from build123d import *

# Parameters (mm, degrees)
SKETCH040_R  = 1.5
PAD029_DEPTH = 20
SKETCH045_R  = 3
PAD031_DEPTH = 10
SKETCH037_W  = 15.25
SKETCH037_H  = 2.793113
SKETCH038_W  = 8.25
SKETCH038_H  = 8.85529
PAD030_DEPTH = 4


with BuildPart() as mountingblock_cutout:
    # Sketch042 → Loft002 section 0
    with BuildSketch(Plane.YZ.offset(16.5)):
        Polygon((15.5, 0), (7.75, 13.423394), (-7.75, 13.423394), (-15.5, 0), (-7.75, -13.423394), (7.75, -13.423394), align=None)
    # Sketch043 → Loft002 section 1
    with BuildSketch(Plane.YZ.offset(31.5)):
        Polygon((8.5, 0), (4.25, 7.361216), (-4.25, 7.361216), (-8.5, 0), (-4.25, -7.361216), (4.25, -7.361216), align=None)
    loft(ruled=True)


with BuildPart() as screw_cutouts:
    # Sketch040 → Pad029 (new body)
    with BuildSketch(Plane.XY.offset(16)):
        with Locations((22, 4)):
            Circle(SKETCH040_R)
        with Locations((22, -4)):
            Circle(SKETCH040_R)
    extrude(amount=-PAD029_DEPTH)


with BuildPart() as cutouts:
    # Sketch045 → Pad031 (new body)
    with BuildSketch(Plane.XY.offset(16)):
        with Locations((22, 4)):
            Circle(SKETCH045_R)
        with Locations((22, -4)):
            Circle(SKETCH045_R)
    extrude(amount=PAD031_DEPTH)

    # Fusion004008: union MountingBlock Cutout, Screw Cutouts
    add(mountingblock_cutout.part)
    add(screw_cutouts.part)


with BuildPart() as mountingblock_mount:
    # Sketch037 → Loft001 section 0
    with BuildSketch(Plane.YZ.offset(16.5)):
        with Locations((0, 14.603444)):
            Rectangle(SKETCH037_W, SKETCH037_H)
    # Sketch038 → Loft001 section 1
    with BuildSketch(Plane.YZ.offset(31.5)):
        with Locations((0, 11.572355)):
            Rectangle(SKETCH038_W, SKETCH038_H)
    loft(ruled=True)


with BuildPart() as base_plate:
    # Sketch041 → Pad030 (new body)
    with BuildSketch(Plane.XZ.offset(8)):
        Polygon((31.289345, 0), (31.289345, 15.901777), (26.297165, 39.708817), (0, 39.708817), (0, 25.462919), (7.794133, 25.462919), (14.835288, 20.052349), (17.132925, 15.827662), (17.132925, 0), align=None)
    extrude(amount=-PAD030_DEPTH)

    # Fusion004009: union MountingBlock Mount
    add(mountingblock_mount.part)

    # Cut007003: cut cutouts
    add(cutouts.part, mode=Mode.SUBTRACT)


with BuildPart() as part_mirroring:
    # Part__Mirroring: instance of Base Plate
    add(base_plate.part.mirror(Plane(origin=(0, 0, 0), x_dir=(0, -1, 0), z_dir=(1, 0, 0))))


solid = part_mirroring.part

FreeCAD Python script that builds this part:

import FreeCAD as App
import Part
import Sketcher
from FreeCAD import Vector
Q = App.Units.Quantity

doc = App.newDocument("Part")
params = doc.addObject("Spreadsheet::Sheet", "Params")
for row, (alias, value) in enumerate([
    ("sketch1_width", "15.5 mm"),
    ("sketch2_width", "8.5 mm"),
    ("sketch3_diameter", "3 mm"),
    ("pad1_length", "20 mm"),
    ("sketch4_diameter", "6 mm"),
    ("pad2_length", "10 mm"),
    ("sketch5_width", "15.25 mm"),
    ("sketch6_width", "8.25 mm"),
    ("pad3_length", "4 mm"),
], start=1):
    params.set(f"A{row}", alias)
    params.set(f"B{row}", "=" + value)
    params.setAlias(f"B{row}", alias)

body = doc.addObject("PartDesign::Body", "Body")

# Sketch on YZ plane
sketch1 = body.newObject("Sketcher::SketchObject", "Sketch")
sketch1.AttachmentSupport = (doc.getObject("YZ_Plane"), [""])
sketch1.MapMode = "FlatFace"
sketch1.AttachmentOffset = App.Placement(Vector(0, 0, 16.5), App.Rotation())
sketch1.addGeometry(Part.LineSegment(Vector(15.5, 0, 0), Vector(7.75, 13.423394, 0)), False)
sketch1.addGeometry(Part.LineSegment(Vector(7.75, 13.423394, 0), Vector(-7.75, 13.423394, 0)), False)
sketch1.addGeometry(Part.LineSegment(Vector(-7.75, 13.423394, 0), Vector(-15.5, 0, 0)), False)
sketch1.addGeometry(Part.LineSegment(Vector(-15.5, 0, 0), Vector(-7.75, -13.423394, 0)), False)
sketch1.addGeometry(Part.LineSegment(Vector(-7.75, -13.423394, 0), Vector(7.75, -13.423394, 0)), False)
sketch1.addGeometry(Part.LineSegment(Vector(7.75, -13.423394, 0), Vector(15.5, 0, 0)), False)
sketch1.addConstraint(Sketcher.Constraint("Coincident", 0, 2, 1, 1))
sketch1.addConstraint(Sketcher.Constraint("Coincident", 1, 2, 2, 1))
sketch1.addConstraint(Sketcher.Constraint("Coincident", 2, 2, 3, 1))
sketch1.addConstraint(Sketcher.Constraint("Coincident", 3, 2, 4, 1))
sketch1.addConstraint(Sketcher.Constraint("Coincident", 4, 2, 5, 1))
sketch1.addConstraint(Sketcher.Constraint("Coincident", 5, 2, 0, 1))
sketch1.addConstraint(Sketcher.Constraint("Horizontal", 1))
sketch1.addConstraint(Sketcher.Constraint("Horizontal", 4))
sketch1.addConstraint(Sketcher.Constraint("Symmetric", 0, 2, 3, 2, -1, 1))
sketch1.addConstraint(Sketcher.Constraint("Symmetric", 2, 2, 5, 2, -1, 1))
sketch1.addConstraint(Sketcher.Constraint("PointOnObject", 2, 2, -1))
sketch1.addConstraint(Sketcher.Constraint("Parallel", 2, 5))
sketch1.addConstraint(Sketcher.Constraint("Vertical", 1, 2, 3, 2))
sketch1.addConstraint(Sketcher.Constraint("Angle", 0, Q("120 deg")))
sketch1.addConstraint(Sketcher.Constraint("DistanceX", 1, 2, 1, 1, Q("15.5 mm")))
sketch1.addConstraint(Sketcher.Constraint("DistanceX", 2, 2, 5, 2, Q("31 mm")))
sketch1.setExpression("Constraints[14]", "Params.sketch1_width")

# Sketch on YZ plane
sketch2 = body.newObject("Sketcher::SketchObject", "Sketch001")
sketch2.AttachmentSupport = (doc.getObject("YZ_Plane"), [""])
sketch2.MapMode = "FlatFace"
sketch2.AttachmentOffset = App.Placement(Vector(0, 0, 31.5), App.Rotation())
sketch2.addGeometry(Part.LineSegment(Vector(8.5, 0, 0), Vector(4.25, 7.361216, 0)), False)
sketch2.addGeometry(Part.LineSegment(Vector(4.25, 7.361216, 0), Vector(-4.25, 7.361216, 0)), False)
sketch2.addGeometry(Part.LineSegment(Vector(-4.25, 7.361216, 0), Vector(-8.5, 0, 0)), False)
sketch2.addGeometry(Part.LineSegment(Vector(-8.5, 0, 0), Vector(-4.25, -7.361216, 0)), False)
sketch2.addGeometry(Part.LineSegment(Vector(-4.25, -7.361216, 0), Vector(4.25, -7.361216, 0)), False)
sketch2.addGeometry(Part.LineSegment(Vector(4.25, -7.361216, 0), Vector(8.5, 0, 0)), False)
sketch2.addConstraint(Sketcher.Constraint("Coincident", 0, 2, 1, 1))
sketch2.addConstraint(Sketcher.Constraint("Coincident", 1, 2, 2, 1))
sketch2.addConstraint(Sketcher.Constraint("Coincident", 2, 2, 3, 1))
sketch2.addConstraint(Sketcher.Constraint("Coincident", 3, 2, 4, 1))
sketch2.addConstraint(Sketcher.Constraint("Coincident", 4, 2, 5, 1))
sketch2.addConstraint(Sketcher.Constraint("Coincident", 5, 2, 0, 1))
sketch2.addConstraint(Sketcher.Constraint("Horizontal", 1))
sketch2.addConstraint(Sketcher.Constraint("Horizontal", 4))
sketch2.addConstraint(Sketcher.Constraint("Symmetric", 0, 2, 3, 2, -1, 1))
sketch2.addConstraint(Sketcher.Constraint("Symmetric", 2, 2, 5, 2, -1, 1))
sketch2.addConstraint(Sketcher.Constraint("PointOnObject", 2, 2, -1))
sketch2.addConstraint(Sketcher.Constraint("Parallel", 2, 5))
sketch2.addConstraint(Sketcher.Constraint("Vertical", 1, 2, 3, 2))
sketch2.addConstraint(Sketcher.Constraint("Angle", 0, Q("120 deg")))
sketch2.addConstraint(Sketcher.Constraint("DistanceX", 1, 2, 1, 1, Q("8.5 mm")))
sketch2.addConstraint(Sketcher.Constraint("DistanceX", 2, 2, 5, 2, Q("17 mm")))
sketch2.setExpression("Constraints[14]", "Params.sketch2_width")

additiveloft = body.newObject("PartDesign::AdditiveLoft", "AdditiveLoft")
additiveloft.Profile = sketch1
additiveloft.Sections = [sketch2]
additiveloft.Ruled = True
body2 = doc.addObject("PartDesign::Body", "Body001")
body2.AllowCompound = True

# Sketch on XY plane
sketch3 = body2.newObject("Sketcher::SketchObject", "Sketch002")
sketch3.AttachmentSupport = (doc.getObject("XY_Plane001"), [""])
sketch3.MapMode = "FlatFace"
sketch3.AttachmentOffset = App.Placement(Vector(0, 0, 16), App.Rotation())
sketch3.addGeometry(Part.Circle(Vector(22, 4, 0), Vector(0, 0, 1), 1.5), False)
sketch3.addGeometry(Part.Circle(Vector(22, -4, 0), Vector(0, 0, 1), 1.5), False)
sketch3.addConstraint(Sketcher.Constraint("Equal", 0, 1))
sketch3.addConstraint(Sketcher.Constraint("Symmetric", 0, 3, 1, 3, -1))
sketch3.addConstraint(Sketcher.Constraint("Diameter", 0, Q("3 mm")))
sketch3.addConstraint(Sketcher.Constraint("DistanceX", -1, 1, 0, 3, Q("22 mm")))
sketch3.addConstraint(Sketcher.Constraint("DistanceY", -1, 1, 0, 3, Q("4 mm")))
sketch3.setExpression("Constraints[2]", "Params.sketch3_diameter")
pad1 = body2.newObject("PartDesign::Pad", "Pad")
pad1.Profile = sketch3
pad1.setExpression("Length", "Params.pad1_length")
pad1.Reversed = True
body3 = doc.addObject("PartDesign::Body", "Body002")
body3.AllowCompound = True

# Sketch on XY plane
sketch4 = body3.newObject("Sketcher::SketchObject", "Sketch003")
sketch4.AttachmentSupport = (doc.getObject("XY_Plane002"), [""])
sketch4.MapMode = "FlatFace"
sketch4.AttachmentOffset = App.Placement(Vector(0, 0, 16), App.Rotation())
sketch4.addGeometry(Part.Circle(Vector(22, 4, 0), Vector(0, 0, 1), 3), False)
sketch4.addGeometry(Part.Circle(Vector(22, -4, 0), Vector(0, 0, 1), 3), False)
sketch4.addConstraint(Sketcher.Constraint("Equal", 0, 1))
sketch4.addConstraint(Sketcher.Constraint("Symmetric", 0, 3, 1, 3, -1))
sketch4.addConstraint(Sketcher.Constraint("Diameter", 0, Q("6 mm")))
sketch4.addConstraint(Sketcher.Constraint("DistanceX", -1, 1, 0, 3, Q("22 mm")))
sketch4.addConstraint(Sketcher.Constraint("DistanceY", -1, 1, 0, 3, Q("4 mm")))
sketch4.setExpression("Constraints[2]", "Params.sketch4_diameter")
pad2 = body3.newObject("PartDesign::Pad", "Pad001")
pad2.Profile = sketch4
pad2.setExpression("Length", "Params.pad2_length")
doc.recompute()

boolean = body3.newObject("PartDesign::Boolean", "Boolean")
boolean.Type = "Fuse"
boolean.addObjects([body])
doc.recompute()

boolean2 = body3.newObject("PartDesign::Boolean", "Boolean001")
boolean2.Type = "Fuse"
boolean2.addObjects([body2])
body4 = doc.addObject("PartDesign::Body", "Body003")

# Sketch on YZ plane
sketch5 = body4.newObject("Sketcher::SketchObject", "Sketch004")
sketch5.AttachmentSupport = (doc.getObject("YZ_Plane003"), [""])
sketch5.MapMode = "FlatFace"
sketch5.AttachmentOffset = App.Placement(Vector(0, 0, 16.5), App.Rotation())
sketch5.addGeometry(Part.LineSegment(Vector(-7.625, 16, 0), Vector(-7.625, 13.206888, 0)), False)
sketch5.addGeometry(Part.LineSegment(Vector(-7.625, 13.206888, 0), Vector(7.625, 13.206888, 0)), False)
sketch5.addGeometry(Part.LineSegment(Vector(7.625, 13.206888, 0), Vector(7.625, 16, 0)), False)
sketch5.addGeometry(Part.LineSegment(Vector(7.625, 16, 0), Vector(-7.625, 16, 0)), False)
sketch5.addConstraint(Sketcher.Constraint("Coincident", 0, 2, 1, 1))
sketch5.addConstraint(Sketcher.Constraint("Coincident", 1, 2, 2, 1))
sketch5.addConstraint(Sketcher.Constraint("Coincident", 2, 2, 3, 1))
sketch5.addConstraint(Sketcher.Constraint("Coincident", 3, 2, 0, 1))
sketch5.addConstraint(Sketcher.Constraint("Vertical", 0))
sketch5.addConstraint(Sketcher.Constraint("Horizontal", 1))
sketch5.addConstraint(Sketcher.Constraint("Vertical", 2))
sketch5.addConstraint(Sketcher.Constraint("Horizontal", 3))
sketch5.addConstraint(Sketcher.Constraint("DistanceY", -1, 1, 2, 2, Q("16 mm")))
sketch5.addConstraint(Sketcher.Constraint("DistanceX", 1, 1, 1, 2, Q("15.25 mm")))
sketch5.addConstraint(Sketcher.Constraint("DistanceX", 0, 2, -1, 1, Q("7.625 mm")))
sketch5.addConstraint(Sketcher.Constraint("DistanceY", 0, 2, 0, 1, Q("2.793113 mm")))
sketch5.setExpression("Constraints[9]", "Params.sketch5_width")

# Sketch on YZ plane
sketch6 = body4.newObject("Sketcher::SketchObject", "Sketch005")
sketch6.AttachmentSupport = (doc.getObject("YZ_Plane003"), [""])
sketch6.MapMode = "FlatFace"
sketch6.AttachmentOffset = App.Placement(Vector(0, 0, 31.5), App.Rotation())
sketch6.addGeometry(Part.LineSegment(Vector(-4.125, 16, 0), Vector(-4.125, 7.14471, 0)), False)
sketch6.addGeometry(Part.LineSegment(Vector(-4.125, 7.14471, 0), Vector(4.125, 7.14471, 0)), False)
sketch6.addGeometry(Part.LineSegment(Vector(4.125, 7.14471, 0), Vector(4.125, 16, 0)), False)
sketch6.addGeometry(Part.LineSegment(Vector(4.125, 16, 0), Vector(-4.125, 16, 0)), False)
sketch6.addConstraint(Sketcher.Constraint("Coincident", 0, 2, 1, 1))
sketch6.addConstraint(Sketcher.Constraint("Coincident", 1, 2, 2, 1))
sketch6.addConstraint(Sketcher.Constraint("Coincident", 2, 2, 3, 1))
sketch6.addConstraint(Sketcher.Constraint("Coincident", 3, 2, 0, 1))
sketch6.addConstraint(Sketcher.Constraint("Vertical", 0))
sketch6.addConstraint(Sketcher.Constraint("Horizontal", 1))
sketch6.addConstraint(Sketcher.Constraint("Vertical", 2))
sketch6.addConstraint(Sketcher.Constraint("Horizontal", 3))
sketch6.addConstraint(Sketcher.Constraint("DistanceY", -1, 1, 2, 2, Q("16 mm")))
sketch6.addConstraint(Sketcher.Constraint("DistanceX", 1, 1, 1, 2, Q("8.25 mm")))
sketch6.addConstraint(Sketcher.Constraint("DistanceX", 0, 2, -1, 1, Q("4.125 mm")))
sketch6.addConstraint(Sketcher.Constraint("DistanceY", 0, 2, 0, 1, Q("8.85529 mm")))
sketch6.setExpression("Constraints[9]", "Params.sketch6_width")

additiveloft2 = body4.newObject("PartDesign::AdditiveLoft", "AdditiveLoft001")
additiveloft2.Profile = sketch5
additiveloft2.Sections = [sketch6]
additiveloft2.Ruled = True
body5 = doc.addObject("PartDesign::Body", "Body004")

# Sketch on XZ plane
sketch7 = body5.newObject("Sketcher::SketchObject", "Sketch006")
sketch7.AttachmentSupport = (doc.getObject("XZ_Plane004"), [""])
sketch7.MapMode = "FlatFace"
sketch7.AttachmentOffset = App.Placement(Vector(0, 0, 8), App.Rotation())
sketch7.addGeometry(Part.LineSegment(Vector(31.289345, 0, 0), Vector(31.289345, 15.901777, 0)), False)
sketch7.addGeometry(Part.LineSegment(Vector(31.289345, 15.901777, 0), Vector(26.297165, 39.708817, 0)), False)
sketch7.addGeometry(Part.LineSegment(Vector(26.297165, 39.708817, 0), Vector(0, 39.708817, 0)), False)
sketch7.addGeometry(Part.LineSegment(Vector(0, 39.708817, 0), Vector(0, 25.462919, 0)), False)
sketch7.addGeometry(Part.LineSegment(Vector(0, 25.462919, 0), Vector(7.794133, 25.462919, 0)), False)
sketch7.addGeometry(Part.LineSegment(Vector(7.794133, 25.462919, 0), Vector(14.835288, 20.052349, 0)), False)
sketch7.addGeometry(Part.LineSegment(Vector(14.835288, 20.052349, 0), Vector(17.132925, 15.827662, 0)), False)
sketch7.addGeometry(Part.LineSegment(Vector(17.132925, 15.827662, 0), Vector(17.132925, 0, 0)), False)
sketch7.addGeometry(Part.LineSegment(Vector(17.132925, 0, 0), Vector(31.289345, 0, 0)), False)
sketch7.addConstraint(Sketcher.Constraint("Coincident", 0, 2, 1, 1))
sketch7.addConstraint(Sketcher.Constraint("Coincident", 1, 2, 2, 1))
sketch7.addConstraint(Sketcher.Constraint("Coincident", 2, 2, 3, 1))
sketch7.addConstraint(Sketcher.Constraint("Coincident", 3, 2, 4, 1))
sketch7.addConstraint(Sketcher.Constraint("Coincident", 4, 2, 5, 1))
sketch7.addConstraint(Sketcher.Constraint("Coincident", 5, 2, 6, 1))
sketch7.addConstraint(Sketcher.Constraint("Coincident", 6, 2, 7, 1))
sketch7.addConstraint(Sketcher.Constraint("Coincident", 7, 2, 8, 1))
sketch7.addConstraint(Sketcher.Constraint("Coincident", 8, 2, 0, 1))
sketch7.addConstraint(Sketcher.Constraint("Vertical", 0))
sketch7.addConstraint(Sketcher.Constraint("Horizontal", 2))
sketch7.addConstraint(Sketcher.Constraint("Vertical", 3))
sketch7.addConstraint(Sketcher.Constraint("Horizontal", 4))
sketch7.addConstraint(Sketcher.Constraint("Vertical", 7))
sketch7.addConstraint(Sketcher.Constraint("Horizontal", 8))
sketch7.addConstraint(Sketcher.Constraint("PointOnObject", 2, 2, -2))
sketch7.addConstraint(Sketcher.Constraint("PointOnObject", 7, 2, -1))
sketch7.addConstraint(Sketcher.Constraint("Angle", 6, Q("-61.460013 deg")))
sketch7.addConstraint(Sketcher.Constraint("DistanceY", 3, 2, 3, 1, Q("14.245898 mm")))
sketch7.addConstraint(Sketcher.Constraint("DistanceX", 8, 1, 8, 2, Q("14.15642 mm")))
sketch7.addConstraint(Sketcher.Constraint("DistanceX", 2, 2, 2, 1, Q("26.297165 mm")))
sketch7.addConstraint(Sketcher.Constraint("DistanceX", 4, 1, 4, 2, Q("7.794133 mm")))
sketch7.addConstraint(Sketcher.Constraint("DistanceY", 0, 1, 0, 2, Q("15.901777 mm")))
sketch7.addConstraint(Sketcher.Constraint("DistanceY", 7, 2, 7, 1, Q("15.827662 mm")))
sketch7.addConstraint(Sketcher.Constraint("DistanceY", -1, 1, 3, 2, Q("25.462919 mm")))
sketch7.addConstraint(Sketcher.Constraint("DistanceY", -1, 1, 5, 2, Q("20.052349 mm")))
sketch7.addConstraint(Sketcher.Constraint("DistanceX", 1, 2, 0, 2, Q("4.99218 mm")))
pad3 = body5.newObject("PartDesign::Pad", "Pad002")
pad3.Profile = sketch7
pad3.setExpression("Length", "Params.pad3_length")
pad3.Reversed = True
doc.recompute()

boolean3 = body5.newObject("PartDesign::Boolean", "Boolean002")
boolean3.Type = "Fuse"
boolean3.addObjects([body4])
doc.recompute()

boolean4 = body5.newObject("PartDesign::Boolean", "Boolean003")
boolean4.Type = "Cut"
boolean4.addObjects([body3])
body6 = doc.addObject("PartDesign::Body", "Body005")
doc.recompute()

mirroring = doc.addObject("Part::Mirroring", "Mirroring")
mirroring.Source = body5
mirroring.Base = Vector(0, 0, 0)
mirroring.Normal = Vector(1, 0, 0)
body6.BaseFeature = mirroring
doc.recompute()
body5.Visibility = False
mirroring.Visibility = False

doc.recompute()
